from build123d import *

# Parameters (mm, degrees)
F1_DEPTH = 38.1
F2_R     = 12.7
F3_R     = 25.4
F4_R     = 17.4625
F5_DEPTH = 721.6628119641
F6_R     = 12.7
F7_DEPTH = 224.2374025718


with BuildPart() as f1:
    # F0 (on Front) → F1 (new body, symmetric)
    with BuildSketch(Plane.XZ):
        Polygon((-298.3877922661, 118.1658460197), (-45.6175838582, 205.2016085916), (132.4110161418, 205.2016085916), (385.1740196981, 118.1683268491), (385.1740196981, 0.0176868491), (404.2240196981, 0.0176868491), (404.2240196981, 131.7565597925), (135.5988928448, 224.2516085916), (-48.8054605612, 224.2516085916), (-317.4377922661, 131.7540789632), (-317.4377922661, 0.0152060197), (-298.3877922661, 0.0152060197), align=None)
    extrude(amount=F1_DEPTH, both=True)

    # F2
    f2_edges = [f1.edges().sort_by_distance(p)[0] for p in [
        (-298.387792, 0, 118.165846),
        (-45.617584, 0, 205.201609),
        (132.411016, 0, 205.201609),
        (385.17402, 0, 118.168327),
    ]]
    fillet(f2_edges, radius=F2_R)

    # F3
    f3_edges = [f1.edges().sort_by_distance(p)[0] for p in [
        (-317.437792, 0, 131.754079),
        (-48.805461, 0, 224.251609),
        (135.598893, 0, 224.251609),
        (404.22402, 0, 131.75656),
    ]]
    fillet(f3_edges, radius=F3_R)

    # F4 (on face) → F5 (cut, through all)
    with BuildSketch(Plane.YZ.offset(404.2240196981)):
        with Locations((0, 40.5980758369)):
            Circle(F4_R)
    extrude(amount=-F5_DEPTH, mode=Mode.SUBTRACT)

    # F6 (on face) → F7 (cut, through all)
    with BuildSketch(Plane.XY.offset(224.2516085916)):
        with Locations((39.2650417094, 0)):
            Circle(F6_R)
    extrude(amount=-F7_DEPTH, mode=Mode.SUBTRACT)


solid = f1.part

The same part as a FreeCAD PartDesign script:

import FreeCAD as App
import Part
import Sketcher

V = App.Vector
Q = App.Units.Quantity


def edges_at(feature, points):
    """Names of the edges that pass closest to the given points."""
    edges = feature.Shape.Edges
    near = lambda p: min(range(len(edges)), key=lambda i: edges[i].distToShape(Part.Vertex(*p))[0])
    return sorted({f"Edge{near(p) + 1}" for p in points})

doc = App.newDocument("Part")
body = doc.addObject("PartDesign::Body", "Body")

# Sketch on XZ plane
sketch1 = body.newObject("Sketcher::SketchObject", "Sketch")
sketch1.AttachmentSupport = (doc.getObject("XZ_Plane"), [""])
sketch1.MapMode = "FlatFace"
sketch1.addGeometry([
    Part.LineSegment(V(-298, 118, 0), V(-46, 205, 0)),  # 0
    Part.LineSegment(V(-46, 205, 0), V(132, 205, 0)),  # 1
    Part.LineSegment(V(132, 205, 0), V(385, 118, 0)),  # 2
    Part.LineSegment(V(385, 118, 0), V(385, 0, 0)),  # 3
    Part.LineSegment(V(385, 0, 0), V(404, 0, 0)),  # 4
    Part.LineSegment(V(404, 0, 0), V(404, 132, 0)),  # 5
    Part.LineSegment(V(404, 132, 0), V(136, 224, 0)),  # 6
    Part.LineSegment(V(136, 224, 0), V(-49, 224, 0)),  # 7
    Part.LineSegment(V(-49, 224, 0), V(-317, 132, 0)),  # 8
    Part.LineSegment(V(-317, 132, 0), V(-317, 0, 0)),  # 9
    Part.LineSegment(V(-317, 0, 0), V(-298, 0, 0)),  # 10
    Part.LineSegment(V(-298, 0, 0), V(-298, 118, 0)),  # 11
], False)
sketch1.addConstraint([
    Sketcher.Constraint("Coincident", 0, 2, 1, 1),
    Sketcher.Constraint("Coincident", 1, 2, 2, 1),
    Sketcher.Constraint("Coincident", 2, 2, 3, 1),
    Sketcher.Constraint("Coincident", 3, 2, 4, 1),
    Sketcher.Constraint("Coincident", 4, 2, 5, 1),
    Sketcher.Constraint("Coincident", 5, 2, 6, 1),
    Sketcher.Constraint("Coincident", 6, 2, 7, 1),
    Sketcher.Constraint("Coincident", 7, 2, 8, 1),
    Sketcher.Constraint("Coincident", 8, 2, 9, 1),
    Sketcher.Constraint("Coincident", 9, 2, 10, 1),
    Sketcher.Constraint("Coincident", 10, 2, 11, 1),
    Sketcher.Constraint("Coincident", 11, 2, 0, 1),
    Sketcher.Constraint("Horizontal", 1),
    Sketcher.Constraint("Vertical", 3),
    Sketcher.Constraint("Horizontal", 4),
    Sketcher.Constraint("Vertical", 5),
    Sketcher.Constraint("Horizontal", 7),
    Sketcher.Constraint("Vertical", 9),
    Sketcher.Constraint("Horizontal", 10),
    Sketcher.Constraint("Vertical", 11),
    Sketcher.Constraint("Parallel", 2, 6),
    Sketcher.Constraint("Parallel", 0, 8),
    Sketcher.Constraint("Equal", 4, 10),
    Sketcher.Constraint("Equal", 5, 9),
    Sketcher.Constraint("Equal", 3, 11),
    Sketcher.Constraint("Angle", 0, Q("19 deg")),
    Sketcher.Constraint("Angle", 2, Q("-19 deg")),
    Sketcher.Constraint("DistanceX", 4, 1, 4, 2, Q("0.75 in")),
    Sketcher.Constraint("DistanceX", 1, 1, 1, 2, Q("7.009 in")),
    Sketcher.Constraint("DistanceY", 1, 2, 6, 2, Q("0.75 in")),
    Sketcher.Constraint("Distance", 0, Q("10.525 in")),
    Sketcher.Constraint("DistanceY", 3, 2, 3, 1, Q("4.6516 in")),
    Sketcher.Constraint("Distance", 2, Q("10.5247 in")),
    Sketcher.Constraint("Distance", 6, Q("284.10349 mm")),
    Sketcher.Constraint("DistanceY", -1, 1, 0, 2, Q("205.201609 mm")),
    Sketcher.Constraint("DistanceX", -1, 1, 2, 2, Q("385.17402 mm")),
])
pad1 = body.newObject("PartDesign::Pad", "Pad")
pad1.Profile = sketch1
pad1.Length = Q("3 in")
pad1.Midplane = True
doc.recompute()

fillet = body.newObject("PartDesign::Fillet", "Fillet")
fillet.Base = (pad1, edges_at(pad1, [
    (-298.388, 0, 118.166),
    (-45.618, 0, 205.202),
    (132.411, 0, 205.202),
    (385.174, 0, 118.168),
]))
fillet.Radius = Q("0.5 in")
doc.recompute()

fillet2 = body.newObject("PartDesign::Fillet", "Fillet001")
fillet2.Base = (fillet, edges_at(fillet, [
    (-317.438, 0, 131.754),
    (-48.805, 0, 224.252),
    (135.599, 0, 224.252),
    (404.224, 0, 131.757),
]))
fillet2.Radius = Q("1 in")

# Sketch on YZ plane
sketch2 = body.newObject("Sketcher::SketchObject", "Sketch001")
sketch2.AttachmentSupport = (doc.getObject("YZ_Plane"), [""])
sketch2.MapMode = "FlatFace"
sketch2.AttachmentOffset = App.Placement(V(0, 0, 404.22402), App.Rotation())
sketch2.addGeometry(Part.Circle(V(0, 41, 0), V(0, 0, 1), 17), False)
sketch2.addConstraint([
    Sketcher.Constraint("PointOnObject", 0, 3, -2),
    Sketcher.Constraint("Diameter", 0, Q("1.375 in")),
    Sketcher.Constraint("DistanceY", -1, 1, 0, 3, Q("40.598076 mm")),
])
pocket1 = body.newObject("PartDesign::Pocket", "Pocket")
pocket1.Profile = sketch2
pocket1.Type = "ThroughAll"

# Sketch on XY plane
sketch3 = body.newObject("Sketcher::SketchObject", "Sketch002")
sketch3.AttachmentSupport = (doc.getObject("XY_Plane"), [""])
sketch3.MapMode = "FlatFace"
sketch3.AttachmentOffset = App.Placement(V(0, 0, 224.251609), App.Rotation())
sketch3.addGeometry(Part.Circle(V(39, 0, 0), V(0, 0, 1), 13), False)
sketch3.addConstraint([
    Sketcher.Constraint("PointOnObject", 0, 3, -1),
    Sketcher.Constraint("Diameter", 0, Q("1 in")),
    Sketcher.Constraint("DistanceX", -1, 1, 0, 3, Q("39.265042 mm")),
])
pocket2 = body.newObject("PartDesign::Pocket", "Pocket001")
pocket2.Profile = sketch3
pocket2.Type = "ThroughAll"

doc.recompute()
